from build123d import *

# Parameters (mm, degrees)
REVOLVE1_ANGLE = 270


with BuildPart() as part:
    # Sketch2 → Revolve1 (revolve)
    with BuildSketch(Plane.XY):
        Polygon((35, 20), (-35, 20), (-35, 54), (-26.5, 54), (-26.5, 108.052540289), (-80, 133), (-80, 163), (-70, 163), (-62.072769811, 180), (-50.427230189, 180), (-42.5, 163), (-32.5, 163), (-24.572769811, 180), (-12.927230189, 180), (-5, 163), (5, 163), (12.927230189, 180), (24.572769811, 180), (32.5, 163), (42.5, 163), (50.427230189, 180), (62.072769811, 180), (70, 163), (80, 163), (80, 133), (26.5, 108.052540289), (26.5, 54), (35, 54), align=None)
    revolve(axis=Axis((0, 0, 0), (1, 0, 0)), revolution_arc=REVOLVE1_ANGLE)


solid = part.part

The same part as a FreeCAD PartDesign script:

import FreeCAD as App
import Part
import Sketcher

V = App.Vector
Q = App.Units.Quantity


def add_polygon(sketch, points):
    """Adds a closed chain of lines whose ends are joined by coincident constraints."""
    first, n = sketch.GeometryCount, len(points)
    for a, b in zip(points, points[1:] + points[:1]):
        sketch.addGeometry(Part.LineSegment(App.Vector(*a, 0), App.Vector(*b, 0)), False)
    for i in range(n):
        sketch.addConstraint(Sketcher.Constraint("Coincident", first + i, 2, first + (i + 1) % n, 1))

doc = App.newDocument("Part")
body = doc.addObject("PartDesign::Body", "Body")

# Sketch on XY plane
sketch1 = body.newObject("Sketcher::SketchObject", "Sketch")
sketch1.AttachmentSupport = (doc.getObject("XY_Plane"), [""])
sketch1.MapMode = "FlatFace"
add_polygon(sketch1, [(-35, 20), (35, 20), (35, 54), (26.5, 54), (26.5, 108.05254), (80, 133), (80, 163), (70, 163), (62.07277, 180), (50.42723, 180), (42.5, 163), (32.5, 163), (24.57277, 180), (12.92723, 180), (5, 163), (-5, 163), (-12.92723, 180), (-24.57277, 180), (-32.5, 163), (-42.5, 163), (-50.42723, 180), (-62.07277, 180), (-70, 163), (-80, 163), (-80, 133), (-26.5, 108.05254), (-26.5, 54), (-35, 54)])  # lines 0-27
sketch1.addConstraint([
    Sketcher.Constraint("Horizontal", 0),
    Sketcher.Constraint("Vertical", 1),
    Sketcher.Constraint("Horizontal", 2),
    Sketcher.Constraint("Vertical", 3),
    Sketcher.Constraint("Vertical", 5),
    Sketcher.Constraint("Horizontal", 6),
    Sketcher.Constraint("Horizontal", 8),
    Sketcher.Constraint("Horizontal", 10),
    Sketcher.Constraint("Horizontal", 12),
    Sketcher.Constraint("Horizontal", 14),
    Sketcher.Constraint("Horizontal", 16),
    Sketcher.Constraint("Horizontal", 18),
    Sketcher.Constraint("Horizontal", 20),
    Sketcher.Constraint("Horizontal", 22),
    Sketcher.Constraint("Vertical", 23),
    Sketcher.Constraint("Vertical", 25),
    Sketcher.Constraint("Horizontal", 26),
    Sketcher.Constraint("Vertical", 27),
    Sketcher.Constraint("Symmetric", 12, 2, 15, 2, -2),
    Sketcher.Constraint("Symmetric", 10, 2, 17, 2, -2),
    Sketcher.Constraint("Symmetric", 8, 2, 19, 2, -2),
    Sketcher.Constraint("Symmetric", 6, 2, 21, 2, -2),
    Sketcher.Constraint("Symmetric", 4, 2, 23, 2, -2),
    Sketcher.Constraint("Symmetric", 3, 2, 24, 2, -2),
    Sketcher.Constraint("Symmetric", 1, 2, 26, 2, -2),
    Sketcher.Constraint("Perpendicular", 4, 7),
    Sketcher.Constraint("Parallel", 7, 11),
    Sketcher.Constraint("Parallel", 9, 13),
    Sketcher.Constraint("Parallel", 11, 15),
    Sketcher.Constraint("Parallel", 13, 17),
    Sketcher.Constraint("Parallel", 15, 19),
    Sketcher.Constraint("Parallel", 17, 21),
    Sketcher.Constraint("Perpendicular", 21, 24),
    Sketcher.Constraint("Horizontal", 6, 2, 9, 2),
    Sketcher.Constraint("Horizontal", 8, 2, 11, 2),
    Sketcher.Constraint("Horizontal", 10, 2, 13, 2),
    Sketcher.Constraint("Equal", 6, 10),
    Sketcher.Constraint("Equal", 8, 12),
    Sketcher.Constraint("Equal", 10, 14),
    Sketcher.Constraint("DistanceX", 0, 1, 0, 2, 70.0),
    Sketcher.Constraint("DistanceX", 6, 2, 6, 1, 10.0),
    Sketcher.Constraint("DistanceY", 1, 1, 1, 2, 34.0),
    Sketcher.Constraint("DistanceY", 5, 1, 5, 2, 30.0),
    Sketcher.Constraint("Angle", 4, Q("25 deg")),
    Sketcher.Constraint("DistanceX", 2, 2, 2, 1, 8.5),
    Sketcher.Constraint("DistanceY", -1, 1, 0, 2, 20.0),
    Sketcher.Constraint("DistanceX", -1, 1, 4, 2, 80.0),
    Sketcher.Constraint("DistanceY", -1, 1, 4, 2, 133.0),
    Sketcher.Constraint("DistanceY", -1, 1, 7, 2, 180.0),
])
revolution = body.newObject("PartDesign::Revolution", "Revolution")
revolution.Profile = sketch1
revolution.ReferenceAxis = (sketch1, ["H_Axis"])
revolution.Angle = 270

doc.recompute()
